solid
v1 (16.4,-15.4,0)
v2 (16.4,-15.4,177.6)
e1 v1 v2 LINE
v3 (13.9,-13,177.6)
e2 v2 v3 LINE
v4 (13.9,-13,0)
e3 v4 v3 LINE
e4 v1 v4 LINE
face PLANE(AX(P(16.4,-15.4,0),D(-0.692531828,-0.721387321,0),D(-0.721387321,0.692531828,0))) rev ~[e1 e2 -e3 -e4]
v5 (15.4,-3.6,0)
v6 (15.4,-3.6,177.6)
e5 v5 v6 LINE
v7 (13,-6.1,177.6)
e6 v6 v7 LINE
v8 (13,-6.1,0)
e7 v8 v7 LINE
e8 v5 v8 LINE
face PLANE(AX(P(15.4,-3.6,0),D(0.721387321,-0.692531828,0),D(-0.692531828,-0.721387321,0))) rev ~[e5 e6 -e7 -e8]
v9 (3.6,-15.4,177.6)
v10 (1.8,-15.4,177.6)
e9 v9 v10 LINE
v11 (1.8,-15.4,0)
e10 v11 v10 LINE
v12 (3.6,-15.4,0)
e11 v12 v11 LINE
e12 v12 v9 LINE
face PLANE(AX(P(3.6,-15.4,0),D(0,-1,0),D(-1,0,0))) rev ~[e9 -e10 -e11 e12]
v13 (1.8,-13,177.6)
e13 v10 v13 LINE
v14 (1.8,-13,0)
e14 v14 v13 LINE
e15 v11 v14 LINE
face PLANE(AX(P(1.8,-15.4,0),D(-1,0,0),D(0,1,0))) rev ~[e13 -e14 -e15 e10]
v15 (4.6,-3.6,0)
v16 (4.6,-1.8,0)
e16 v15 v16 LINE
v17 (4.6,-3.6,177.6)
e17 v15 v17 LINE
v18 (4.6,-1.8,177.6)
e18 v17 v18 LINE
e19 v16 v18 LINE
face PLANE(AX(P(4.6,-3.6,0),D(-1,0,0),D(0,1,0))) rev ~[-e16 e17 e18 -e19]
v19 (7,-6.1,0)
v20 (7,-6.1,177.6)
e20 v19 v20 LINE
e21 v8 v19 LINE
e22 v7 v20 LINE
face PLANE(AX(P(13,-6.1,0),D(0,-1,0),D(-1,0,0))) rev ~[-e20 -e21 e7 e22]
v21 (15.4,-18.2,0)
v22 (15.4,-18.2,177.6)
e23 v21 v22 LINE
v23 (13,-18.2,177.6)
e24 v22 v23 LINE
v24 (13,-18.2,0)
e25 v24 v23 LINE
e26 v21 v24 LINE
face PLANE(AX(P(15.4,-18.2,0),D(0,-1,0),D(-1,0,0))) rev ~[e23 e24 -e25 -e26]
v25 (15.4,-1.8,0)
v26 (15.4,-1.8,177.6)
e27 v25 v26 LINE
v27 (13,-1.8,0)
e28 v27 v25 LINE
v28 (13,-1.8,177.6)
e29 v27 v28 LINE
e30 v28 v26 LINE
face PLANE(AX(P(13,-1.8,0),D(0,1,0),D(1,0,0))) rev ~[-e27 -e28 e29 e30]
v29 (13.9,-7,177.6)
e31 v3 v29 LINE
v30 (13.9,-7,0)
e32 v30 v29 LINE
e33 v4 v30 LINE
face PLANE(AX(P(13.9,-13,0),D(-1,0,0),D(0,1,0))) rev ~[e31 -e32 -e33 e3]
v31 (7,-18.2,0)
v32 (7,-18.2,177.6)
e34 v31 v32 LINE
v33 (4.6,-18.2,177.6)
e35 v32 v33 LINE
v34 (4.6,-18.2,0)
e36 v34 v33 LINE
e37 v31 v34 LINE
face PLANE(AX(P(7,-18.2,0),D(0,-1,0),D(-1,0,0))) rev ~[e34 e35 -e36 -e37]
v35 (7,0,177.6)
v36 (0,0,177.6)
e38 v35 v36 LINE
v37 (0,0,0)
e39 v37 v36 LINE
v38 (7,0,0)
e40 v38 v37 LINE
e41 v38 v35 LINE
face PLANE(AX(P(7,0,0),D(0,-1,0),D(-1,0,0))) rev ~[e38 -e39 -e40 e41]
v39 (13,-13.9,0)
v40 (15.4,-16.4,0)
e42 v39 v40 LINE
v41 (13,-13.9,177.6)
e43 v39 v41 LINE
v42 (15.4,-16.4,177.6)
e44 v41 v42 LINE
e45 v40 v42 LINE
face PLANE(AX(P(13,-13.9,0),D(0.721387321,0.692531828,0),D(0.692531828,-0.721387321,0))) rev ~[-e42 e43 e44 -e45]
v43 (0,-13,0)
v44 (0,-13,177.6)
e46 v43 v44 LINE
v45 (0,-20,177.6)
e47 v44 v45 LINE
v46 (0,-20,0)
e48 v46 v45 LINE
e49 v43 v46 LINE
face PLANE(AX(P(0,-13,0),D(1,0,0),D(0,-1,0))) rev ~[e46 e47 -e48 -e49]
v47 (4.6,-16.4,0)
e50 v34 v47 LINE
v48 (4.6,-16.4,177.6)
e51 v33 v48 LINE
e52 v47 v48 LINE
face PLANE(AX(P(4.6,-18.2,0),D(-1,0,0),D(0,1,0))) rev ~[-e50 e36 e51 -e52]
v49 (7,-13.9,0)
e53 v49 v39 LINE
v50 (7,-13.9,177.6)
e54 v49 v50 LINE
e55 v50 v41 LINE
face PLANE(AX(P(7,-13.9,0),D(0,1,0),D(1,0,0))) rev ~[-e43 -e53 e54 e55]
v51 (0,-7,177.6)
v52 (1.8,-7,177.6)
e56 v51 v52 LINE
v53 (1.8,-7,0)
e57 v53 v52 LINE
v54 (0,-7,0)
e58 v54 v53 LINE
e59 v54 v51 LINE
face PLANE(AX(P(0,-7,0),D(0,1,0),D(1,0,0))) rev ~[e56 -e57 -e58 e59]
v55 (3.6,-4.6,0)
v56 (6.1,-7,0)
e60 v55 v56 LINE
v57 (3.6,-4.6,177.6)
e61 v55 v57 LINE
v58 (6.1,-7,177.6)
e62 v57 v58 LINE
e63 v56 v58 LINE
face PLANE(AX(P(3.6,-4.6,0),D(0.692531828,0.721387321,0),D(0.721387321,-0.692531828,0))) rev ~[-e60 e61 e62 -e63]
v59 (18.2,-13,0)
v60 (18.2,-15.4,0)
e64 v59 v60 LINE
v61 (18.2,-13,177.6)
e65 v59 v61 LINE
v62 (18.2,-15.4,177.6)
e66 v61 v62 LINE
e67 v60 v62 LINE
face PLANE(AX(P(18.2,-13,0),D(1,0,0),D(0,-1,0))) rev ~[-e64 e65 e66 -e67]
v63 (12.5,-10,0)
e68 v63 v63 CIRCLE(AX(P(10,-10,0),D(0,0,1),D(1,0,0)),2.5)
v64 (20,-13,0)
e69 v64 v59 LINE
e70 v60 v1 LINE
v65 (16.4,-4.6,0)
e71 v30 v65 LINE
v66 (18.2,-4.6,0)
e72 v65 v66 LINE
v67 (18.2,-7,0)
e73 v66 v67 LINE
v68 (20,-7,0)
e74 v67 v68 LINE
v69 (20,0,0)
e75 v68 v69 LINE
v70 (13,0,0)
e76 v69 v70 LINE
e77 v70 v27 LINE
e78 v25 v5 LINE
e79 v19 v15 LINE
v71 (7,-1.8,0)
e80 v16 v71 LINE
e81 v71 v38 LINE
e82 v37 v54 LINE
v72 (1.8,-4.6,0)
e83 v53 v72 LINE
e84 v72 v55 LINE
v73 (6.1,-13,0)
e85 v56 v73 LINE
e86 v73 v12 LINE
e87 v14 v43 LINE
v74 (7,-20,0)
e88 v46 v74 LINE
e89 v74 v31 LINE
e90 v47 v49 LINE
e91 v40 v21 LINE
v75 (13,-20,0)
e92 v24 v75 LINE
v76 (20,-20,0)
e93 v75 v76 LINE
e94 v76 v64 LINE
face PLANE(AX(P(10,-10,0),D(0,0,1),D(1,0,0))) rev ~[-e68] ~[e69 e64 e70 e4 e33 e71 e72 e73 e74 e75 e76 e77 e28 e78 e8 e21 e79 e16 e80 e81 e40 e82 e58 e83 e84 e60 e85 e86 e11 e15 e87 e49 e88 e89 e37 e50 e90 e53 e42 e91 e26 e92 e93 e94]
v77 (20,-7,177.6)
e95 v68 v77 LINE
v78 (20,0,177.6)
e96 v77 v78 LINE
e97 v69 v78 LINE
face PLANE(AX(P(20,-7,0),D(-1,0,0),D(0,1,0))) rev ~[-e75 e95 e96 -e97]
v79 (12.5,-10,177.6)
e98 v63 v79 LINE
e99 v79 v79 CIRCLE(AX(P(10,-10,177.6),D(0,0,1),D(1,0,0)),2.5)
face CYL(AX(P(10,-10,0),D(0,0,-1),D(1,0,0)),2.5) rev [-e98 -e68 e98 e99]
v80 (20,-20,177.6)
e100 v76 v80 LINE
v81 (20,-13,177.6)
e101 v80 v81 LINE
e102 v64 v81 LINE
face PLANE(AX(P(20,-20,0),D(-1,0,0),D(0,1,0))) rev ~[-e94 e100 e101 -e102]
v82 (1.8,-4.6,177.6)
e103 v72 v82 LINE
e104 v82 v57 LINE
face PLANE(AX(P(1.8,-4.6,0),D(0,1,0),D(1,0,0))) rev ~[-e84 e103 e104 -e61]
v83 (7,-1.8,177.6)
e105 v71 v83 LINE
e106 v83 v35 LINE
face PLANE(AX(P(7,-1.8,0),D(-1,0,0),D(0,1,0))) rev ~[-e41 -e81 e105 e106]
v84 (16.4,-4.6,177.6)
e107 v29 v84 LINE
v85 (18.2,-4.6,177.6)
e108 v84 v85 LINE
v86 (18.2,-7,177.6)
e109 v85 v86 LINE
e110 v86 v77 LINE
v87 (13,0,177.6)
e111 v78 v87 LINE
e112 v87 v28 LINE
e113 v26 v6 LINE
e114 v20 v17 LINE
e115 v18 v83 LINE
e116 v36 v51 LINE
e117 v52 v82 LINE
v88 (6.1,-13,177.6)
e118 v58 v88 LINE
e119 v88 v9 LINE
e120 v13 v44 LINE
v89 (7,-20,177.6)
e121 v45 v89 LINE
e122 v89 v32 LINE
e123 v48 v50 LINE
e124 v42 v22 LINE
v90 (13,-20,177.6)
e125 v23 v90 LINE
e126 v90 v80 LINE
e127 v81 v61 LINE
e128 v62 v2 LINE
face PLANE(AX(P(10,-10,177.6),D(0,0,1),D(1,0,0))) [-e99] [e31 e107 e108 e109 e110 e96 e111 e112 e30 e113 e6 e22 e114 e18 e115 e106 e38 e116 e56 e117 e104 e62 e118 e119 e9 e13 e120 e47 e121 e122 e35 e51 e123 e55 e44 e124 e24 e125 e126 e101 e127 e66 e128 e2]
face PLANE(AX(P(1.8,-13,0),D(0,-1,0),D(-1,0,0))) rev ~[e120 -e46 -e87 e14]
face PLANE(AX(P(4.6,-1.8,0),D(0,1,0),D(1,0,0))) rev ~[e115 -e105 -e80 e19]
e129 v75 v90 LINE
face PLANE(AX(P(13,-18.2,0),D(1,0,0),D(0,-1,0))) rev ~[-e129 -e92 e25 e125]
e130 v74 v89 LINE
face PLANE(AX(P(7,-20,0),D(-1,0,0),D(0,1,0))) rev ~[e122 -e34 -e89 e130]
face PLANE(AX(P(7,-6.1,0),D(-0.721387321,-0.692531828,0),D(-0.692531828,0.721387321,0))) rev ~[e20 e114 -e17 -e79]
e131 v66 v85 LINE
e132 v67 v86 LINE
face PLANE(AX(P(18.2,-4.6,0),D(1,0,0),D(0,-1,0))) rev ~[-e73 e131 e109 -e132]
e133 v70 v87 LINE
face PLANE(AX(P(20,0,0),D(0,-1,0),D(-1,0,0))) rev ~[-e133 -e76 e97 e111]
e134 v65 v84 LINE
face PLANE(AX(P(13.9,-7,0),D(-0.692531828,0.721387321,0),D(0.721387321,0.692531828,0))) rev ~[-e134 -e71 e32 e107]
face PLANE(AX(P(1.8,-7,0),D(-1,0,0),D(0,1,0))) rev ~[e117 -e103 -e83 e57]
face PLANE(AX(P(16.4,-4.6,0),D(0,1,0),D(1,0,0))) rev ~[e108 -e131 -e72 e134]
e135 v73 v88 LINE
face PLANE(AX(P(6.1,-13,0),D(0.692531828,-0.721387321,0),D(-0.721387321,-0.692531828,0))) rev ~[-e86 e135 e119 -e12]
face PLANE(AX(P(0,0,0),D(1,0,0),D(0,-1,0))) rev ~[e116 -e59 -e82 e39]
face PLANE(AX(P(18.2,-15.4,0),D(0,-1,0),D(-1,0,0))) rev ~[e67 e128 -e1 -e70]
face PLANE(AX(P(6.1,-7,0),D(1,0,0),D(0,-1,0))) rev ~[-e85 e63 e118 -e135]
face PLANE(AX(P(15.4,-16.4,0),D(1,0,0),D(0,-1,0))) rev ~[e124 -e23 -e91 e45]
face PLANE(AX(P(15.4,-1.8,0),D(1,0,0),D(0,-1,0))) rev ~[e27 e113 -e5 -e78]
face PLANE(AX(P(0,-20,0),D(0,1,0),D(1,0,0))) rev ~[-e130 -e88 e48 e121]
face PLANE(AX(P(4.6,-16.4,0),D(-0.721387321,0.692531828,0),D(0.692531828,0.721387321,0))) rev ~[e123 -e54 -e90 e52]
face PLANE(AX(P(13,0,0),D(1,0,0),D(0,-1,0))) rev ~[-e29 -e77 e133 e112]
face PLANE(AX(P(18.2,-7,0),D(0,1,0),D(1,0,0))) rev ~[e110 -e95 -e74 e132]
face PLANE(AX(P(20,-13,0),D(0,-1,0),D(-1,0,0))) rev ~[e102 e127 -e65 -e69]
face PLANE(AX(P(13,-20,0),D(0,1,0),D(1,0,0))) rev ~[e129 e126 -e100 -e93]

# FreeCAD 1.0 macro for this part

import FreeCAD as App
import Part
import Sketcher

V = App.Vector


def add_polygon(sketch, points):
    """Adds a closed chain of lines whose ends are joined by coincident constraints."""
    first, n = sketch.GeometryCount, len(points)
    for a, b in zip(points, points[1:] + points[:1]):
        sketch.addGeometry(Part.LineSegment(App.Vector(*a, 0), App.Vector(*b, 0)), False)
    for i in range(n):
        sketch.addConstraint(Sketcher.Constraint("Coincident", first + i, 2, first + (i + 1) % n, 1))

doc = App.newDocument("Part")
body = doc.addObject("PartDesign::Body", "Body")

# Sketch on XY plane
sketch1 = body.newObject("Sketcher::SketchObject", "Sketch")
sketch1.AttachmentSupport = (doc.getObject("XY_Plane"), [""])
sketch1.MapMode = "FlatFace"
add_polygon(sketch1, [(7, -1.8), (7, 0), (0, 0), (0, -7), (1.8, -7), (1.8, -4.6), (3.6, -4.6), (6.1, -7), (6.1, -13), (3.6, -15.4), (1.8, -15.4), (1.8, -13), (0, -13), (0, -20), (7, -20), (7, -18.2), (4.6, -18.2), (4.6, -16.4), (7, -13.9), (13, -13.9), (15.4, -16.4), (15.4, -18.2), (13, -18.2), (13, -20), (20, -20), (20, -13), (18.2, -13), (18.2, -15.4), (16.4, -15.4), (13.9, -13), (13.9, -7), (16.4, -4.6), (18.2, -4.6), (18.2, -7), (20, -7), (20, 0), (13, 0), (13, -1.8), (15.4, -1.8), (15.4, -3.6), (13, -6.1), (7, -6.1), (4.6, -3.6), (4.6, -1.8)])  # lines 0-43
sketch1.addGeometry(Part.Circle(V(10, -10, 0), V(0, 0, 1), 2.5), False)  # 44
sketch1.addConstraint([
    Sketcher.Constraint("Vertical", 0),
    Sketcher.Constraint("Horizontal", 1),
    Sketcher.Constraint("Vertical", 2),
    Sketcher.Constraint("Horizontal", 3),
    Sketcher.Constraint("Vertical", 4),
    Sketcher.Constraint("Horizontal", 5),
    Sketcher.Constraint("Vertical", 7),
    Sketcher.Constraint("Horizontal", 9),
    Sketcher.Constraint("Vertical", 10),
    Sketcher.Constraint("Horizontal", 11),
    Sketcher.Constraint("Vertical", 12),
    Sketcher.Constraint("Horizontal", 13),
    Sketcher.Constraint("Vertical", 14),
    Sketcher.Constraint("Horizontal", 15),
    Sketcher.Constraint("Vertical", 16),
    Sketcher.Constraint("Horizontal", 18),
    Sketcher.Constraint("Vertical", 20),
    Sketcher.Constraint("Horizontal", 21),
    Sketcher.Constraint("Vertical", 22),
    Sketcher.Constraint("Horizontal", 23),
    Sketcher.Constraint("Vertical", 24),
    Sketcher.Constraint("Horizontal", 25),
    Sketcher.Constraint("Vertical", 26),
    Sketcher.Constraint("Horizontal", 27),
    Sketcher.Constraint("Vertical", 29),
    Sketcher.Constraint("Horizontal", 31),
    Sketcher.Constraint("Vertical", 32),
    Sketcher.Constraint("Horizontal", 33),
    Sketcher.Constraint("Vertical", 34),
    Sketcher.Constraint("Horizontal", 35),
    Sketcher.Constraint("Vertical", 36),
    Sketcher.Constraint("Horizontal", 37),
    Sketcher.Constraint("Vertical", 38),
    Sketcher.Constraint("Horizontal", 40),
    Sketcher.Constraint("Vertical", 42),
    Sketcher.Constraint("Horizontal", 43),
    Sketcher.Constraint("Coincident", 1, 2, -1, 1),
    Sketcher.Constraint("PointOnObject", 11, 2, -2),
    Sketcher.Constraint("PointOnObject", 34, 2, -1),
    Sketcher.Constraint("Perpendicular", 6, 17),
    Sketcher.Constraint("Perpendicular", 8, 19),
    Sketcher.Constraint("Perpendicular", 17, 28),
    Sketcher.Constraint("Perpendicular", 19, 30),
    Sketcher.Constraint("Perpendicular", 28, 39),
    Sketcher.Constraint("Perpendicular", 30, 41),
    Sketcher.Constraint("Horizontal", 3, 2, 6, 2),
    Sketcher.Constraint("Horizontal", 7, 2, 10, 2),
    Sketcher.Constraint("Horizontal", 16, 2, 19, 2),
    Sketcher.Constraint("Horizontal", 15, 2, 20, 2),
    Sketcher.Constraint("Horizontal", 13, 2, 22, 2),
    Sketcher.Constraint("Horizontal", 11, 2, 24, 2),
    Sketcher.Constraint("Horizontal", 9, 2, 26, 2),
    Sketcher.Constraint("Horizontal", 25, 2, 28, 2),
    Sketcher.Constraint("Horizontal", 6, 2, 29, 2),
    Sketcher.Constraint("Horizontal", 5, 2, 30, 2),
    Sketcher.Constraint("Horizontal", 29, 2, 32, 2),
    Sketcher.Constraint("Horizontal", 38, 2, 41, 2),
    Sketcher.Constraint("Horizontal", 37, 2, 42, 2),
    Sketcher.Constraint("Vertical", 5, 2, 8, 2),
    Sketcher.Constraint("Vertical", 4, 2, 9, 2),
    Sketcher.Constraint("Vertical", 0, 2, 13, 2),
    Sketcher.Constraint("Vertical", 14, 2, 17, 2),
    Sketcher.Constraint("Vertical", 18, 2, 21, 2),
    Sketcher.Constraint("Vertical", 27, 2, 30, 2),
    Sketcher.Constraint("Vertical", 26, 2, 31, 2),
    Sketcher.Constraint("Vertical", 24, 2, 33, 2),
    Sketcher.Constraint("Vertical", 22, 2, 35, 2),
    Sketcher.Constraint("Vertical", 20, 2, 37, 2),
    Sketcher.Constraint("Vertical", 36, 2, 39, 2),
    Sketcher.Constraint("Vertical", 17, 2, 40, 2),
    Sketcher.Constraint("Equal", 3, 5),
    Sketcher.Constraint("Equal", 13, 23),
    Sketcher.Constraint("Equal", 11, 25),
    Sketcher.Constraint("Equal", 25, 27),
    Sketcher.Constraint("Equal", 33, 0),
    Sketcher.Constraint("Equal", 35, 2),
    Sketcher.Constraint("Equal", 43, 4),
    Sketcher.Constraint("Equal", 40, 7),
    Sketcher.Constraint("Equal", 2, 12),
    Sketcher.Constraint("Equal", 0, 14),
    Sketcher.Constraint("Equal", 14, 16),
    Sketcher.Constraint("Equal", 36, 38),
    Sketcher.Constraint("Diameter", 44, 5.0),
    Sketcher.Constraint("DistanceX", 1, 2, 1, 1, 7.0),
    Sketcher.Constraint("DistanceX", 18, 1, 18, 2, 6.0),
    Sketcher.Constraint("DistanceX", 3, 1, 3, 2, 1.8),
    Sketcher.Constraint("DistanceX", 15, 2, 15, 1, 2.4),
    Sketcher.Constraint("DistanceX", -1, 1, 44, 3, 10.0),
    Sketcher.Constraint("DistanceY", 44, 3, -1, 1, 10.0),
    Sketcher.Constraint("DistanceX", -1, 1, 6, 2, 6.1),
])
pad1 = body.newObject("PartDesign::Pad", "Pad")
pad1.Profile = sketch1
pad1.Length = 177.6

doc.recompute()
